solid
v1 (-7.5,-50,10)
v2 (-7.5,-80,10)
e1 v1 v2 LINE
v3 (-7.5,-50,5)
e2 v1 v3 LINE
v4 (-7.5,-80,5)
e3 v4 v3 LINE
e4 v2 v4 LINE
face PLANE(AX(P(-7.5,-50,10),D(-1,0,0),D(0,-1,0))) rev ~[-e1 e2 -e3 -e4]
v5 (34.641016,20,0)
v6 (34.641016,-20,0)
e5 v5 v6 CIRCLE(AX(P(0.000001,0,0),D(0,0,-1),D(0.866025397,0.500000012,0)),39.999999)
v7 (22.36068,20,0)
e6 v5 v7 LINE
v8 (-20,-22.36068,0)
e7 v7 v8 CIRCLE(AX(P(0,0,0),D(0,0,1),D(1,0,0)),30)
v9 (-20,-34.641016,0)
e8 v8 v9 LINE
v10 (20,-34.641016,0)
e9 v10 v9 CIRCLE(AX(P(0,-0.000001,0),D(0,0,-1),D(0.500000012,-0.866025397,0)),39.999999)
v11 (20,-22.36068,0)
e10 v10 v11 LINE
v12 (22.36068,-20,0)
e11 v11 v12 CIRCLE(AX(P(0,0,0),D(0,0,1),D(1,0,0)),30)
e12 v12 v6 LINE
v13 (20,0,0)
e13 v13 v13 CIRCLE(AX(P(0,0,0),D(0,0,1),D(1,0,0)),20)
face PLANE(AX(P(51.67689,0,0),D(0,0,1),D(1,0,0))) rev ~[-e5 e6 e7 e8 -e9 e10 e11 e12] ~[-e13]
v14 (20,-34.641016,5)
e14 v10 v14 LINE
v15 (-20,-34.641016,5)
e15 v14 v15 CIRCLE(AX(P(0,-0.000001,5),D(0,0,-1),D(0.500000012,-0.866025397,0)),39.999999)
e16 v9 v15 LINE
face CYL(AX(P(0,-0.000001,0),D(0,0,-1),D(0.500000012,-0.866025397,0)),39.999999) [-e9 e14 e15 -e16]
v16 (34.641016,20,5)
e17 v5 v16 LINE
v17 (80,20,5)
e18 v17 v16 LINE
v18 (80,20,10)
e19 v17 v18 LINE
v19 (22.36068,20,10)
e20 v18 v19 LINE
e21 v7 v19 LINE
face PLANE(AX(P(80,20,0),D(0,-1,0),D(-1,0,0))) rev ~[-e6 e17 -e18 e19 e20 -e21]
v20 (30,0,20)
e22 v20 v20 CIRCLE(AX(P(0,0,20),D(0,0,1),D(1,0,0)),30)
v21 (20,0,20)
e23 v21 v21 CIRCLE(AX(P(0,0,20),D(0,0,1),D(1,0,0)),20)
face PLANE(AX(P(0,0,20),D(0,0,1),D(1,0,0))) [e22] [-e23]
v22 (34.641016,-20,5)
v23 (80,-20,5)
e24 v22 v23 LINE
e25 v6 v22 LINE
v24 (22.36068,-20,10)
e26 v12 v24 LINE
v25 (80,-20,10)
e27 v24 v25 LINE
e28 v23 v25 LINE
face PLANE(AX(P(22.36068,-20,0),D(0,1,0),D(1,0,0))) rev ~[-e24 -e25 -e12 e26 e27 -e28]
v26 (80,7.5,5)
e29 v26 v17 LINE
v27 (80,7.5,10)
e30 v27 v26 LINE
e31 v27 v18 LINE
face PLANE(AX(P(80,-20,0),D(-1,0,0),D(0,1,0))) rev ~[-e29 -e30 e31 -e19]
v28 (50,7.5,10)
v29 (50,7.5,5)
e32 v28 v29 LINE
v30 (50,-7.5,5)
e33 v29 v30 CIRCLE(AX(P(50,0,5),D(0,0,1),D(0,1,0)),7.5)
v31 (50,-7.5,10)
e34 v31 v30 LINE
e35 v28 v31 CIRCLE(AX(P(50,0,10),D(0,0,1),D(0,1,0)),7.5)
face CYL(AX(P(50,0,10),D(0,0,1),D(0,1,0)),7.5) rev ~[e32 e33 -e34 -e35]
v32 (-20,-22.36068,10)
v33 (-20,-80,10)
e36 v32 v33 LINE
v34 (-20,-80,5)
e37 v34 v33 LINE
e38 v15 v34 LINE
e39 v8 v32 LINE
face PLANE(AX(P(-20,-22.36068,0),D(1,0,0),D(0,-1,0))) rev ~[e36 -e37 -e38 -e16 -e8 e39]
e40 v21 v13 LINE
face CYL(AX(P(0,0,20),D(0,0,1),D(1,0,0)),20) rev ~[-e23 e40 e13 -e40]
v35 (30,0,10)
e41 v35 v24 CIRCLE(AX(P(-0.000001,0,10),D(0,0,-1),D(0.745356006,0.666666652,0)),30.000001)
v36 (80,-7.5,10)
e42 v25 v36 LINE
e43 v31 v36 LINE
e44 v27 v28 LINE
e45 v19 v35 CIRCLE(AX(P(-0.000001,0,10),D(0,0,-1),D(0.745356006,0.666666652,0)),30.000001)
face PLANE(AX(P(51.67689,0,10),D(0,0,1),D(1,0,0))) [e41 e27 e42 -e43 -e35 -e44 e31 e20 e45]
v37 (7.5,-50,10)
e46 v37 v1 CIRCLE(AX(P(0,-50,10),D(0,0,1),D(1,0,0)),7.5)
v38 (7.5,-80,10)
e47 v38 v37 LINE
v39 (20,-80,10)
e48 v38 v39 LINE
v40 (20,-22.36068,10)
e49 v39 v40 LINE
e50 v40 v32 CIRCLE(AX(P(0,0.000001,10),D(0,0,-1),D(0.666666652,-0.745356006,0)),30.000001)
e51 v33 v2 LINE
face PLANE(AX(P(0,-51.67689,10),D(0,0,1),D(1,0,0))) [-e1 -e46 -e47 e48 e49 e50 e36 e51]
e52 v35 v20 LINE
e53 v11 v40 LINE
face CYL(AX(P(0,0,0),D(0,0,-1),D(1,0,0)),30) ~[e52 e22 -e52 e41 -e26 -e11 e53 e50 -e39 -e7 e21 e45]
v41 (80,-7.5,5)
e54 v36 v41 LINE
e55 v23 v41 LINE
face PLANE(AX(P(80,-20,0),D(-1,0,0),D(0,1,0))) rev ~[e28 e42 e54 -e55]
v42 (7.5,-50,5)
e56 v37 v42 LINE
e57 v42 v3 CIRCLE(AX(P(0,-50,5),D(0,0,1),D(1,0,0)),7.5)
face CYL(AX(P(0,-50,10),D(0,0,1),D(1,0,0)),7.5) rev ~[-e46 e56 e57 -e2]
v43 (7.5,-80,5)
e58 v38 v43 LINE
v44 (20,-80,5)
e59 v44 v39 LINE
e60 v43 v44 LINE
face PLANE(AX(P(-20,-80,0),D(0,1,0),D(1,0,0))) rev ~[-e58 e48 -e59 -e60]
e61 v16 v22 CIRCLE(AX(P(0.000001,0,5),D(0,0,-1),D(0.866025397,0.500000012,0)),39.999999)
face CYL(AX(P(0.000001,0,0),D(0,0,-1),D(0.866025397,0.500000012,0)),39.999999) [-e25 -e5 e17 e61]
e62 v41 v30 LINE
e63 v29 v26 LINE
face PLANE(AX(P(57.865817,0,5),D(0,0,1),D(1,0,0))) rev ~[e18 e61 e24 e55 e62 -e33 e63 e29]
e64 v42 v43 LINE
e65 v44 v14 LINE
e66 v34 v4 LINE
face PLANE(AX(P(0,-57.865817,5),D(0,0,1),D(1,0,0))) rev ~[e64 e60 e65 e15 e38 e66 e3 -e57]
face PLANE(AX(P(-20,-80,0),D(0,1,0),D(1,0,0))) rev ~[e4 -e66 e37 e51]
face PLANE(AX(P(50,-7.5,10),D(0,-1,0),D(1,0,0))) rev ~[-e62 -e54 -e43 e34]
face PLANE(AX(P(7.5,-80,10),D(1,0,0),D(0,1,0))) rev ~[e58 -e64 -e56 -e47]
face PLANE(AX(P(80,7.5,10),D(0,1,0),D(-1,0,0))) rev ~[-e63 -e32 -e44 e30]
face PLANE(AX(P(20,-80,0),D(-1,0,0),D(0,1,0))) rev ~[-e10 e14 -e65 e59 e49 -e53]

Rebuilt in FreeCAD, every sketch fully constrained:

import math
import FreeCAD as App
import Part
import Sketcher
from FreeCAD import Vector
Q = App.Units.Quantity

doc = App.newDocument("Part")
body = doc.addObject("PartDesign::Body", "Body")

# Sketch on XY plane
sketch1 = body.newObject("Sketcher::SketchObject", "Sketch")
sketch1.AttachmentSupport = (doc.getObject("XY_Plane"), [""])
sketch1.MapMode = "FlatFace"
sketch1.addGeometry(Part.Circle(Vector(0, 0, 0), Vector(0, 0, 1), 30), False)
sketch1.addConstraint(Sketcher.Constraint("Coincident", 0, 3, -1, 1))
sketch1.addConstraint(Sketcher.Constraint("Diameter", 0, Q("60 mm")))
pad1 = body.newObject("PartDesign::Pad", "Pad")
pad1.Profile = sketch1
pad1.Length = 20

# Sketch on XY plane
sketch2 = body.newObject("Sketcher::SketchObject", "Sketch001")
sketch2.AttachmentSupport = (doc.getObject("XY_Plane"), [""])
sketch2.MapMode = "FlatFace"
sketch2.addGeometry(Part.ArcOfCircle(Part.Circle(Vector(0, 0, 0), Vector(0, 0, 1), 30), math.radians(-42), math.radians(42)), False)
sketch2.addGeometry(Part.LineSegment(Vector(22, -20, 0), Vector(80, -20, 0)), False)
sketch2.addGeometry(Part.LineSegment(Vector(80, -20, 0), Vector(80, 20, 0)), False)
sketch2.addGeometry(Part.LineSegment(Vector(80, 20, 0), Vector(22, 20, 0)), False)
sketch2.addGeometry(Part.LineSegment(Vector(20, -80, 0), Vector(20, -22, 0)), False)
sketch2.addGeometry(Part.ArcOfCircle(Part.Circle(Vector(0, 0, 0), Vector(0, 0, 1), 30), math.radians(-132), math.radians(-48)), False)
sketch2.addGeometry(Part.LineSegment(Vector(-20, -22, 0), Vector(-20, -80, 0)), False)
sketch2.addGeometry(Part.LineSegment(Vector(-20, -80, 0), Vector(20, -80, 0)), False)
sketch2.addConstraint(Sketcher.Constraint("Coincident", 0, 1, 1, 1))
sketch2.addConstraint(Sketcher.Constraint("Coincident", 1, 2, 2, 1))
sketch2.addConstraint(Sketcher.Constraint("Coincident", 2, 2, 3, 1))
sketch2.addConstraint(Sketcher.Constraint("Coincident", 3, 2, 0, 2))
sketch2.addConstraint(Sketcher.Constraint("Coincident", 4, 2, 5, 2))
sketch2.addConstraint(Sketcher.Constraint("Coincident", 5, 1, 6, 1))
sketch2.addConstraint(Sketcher.Constraint("Coincident", 6, 2, 7, 1))
sketch2.addConstraint(Sketcher.Constraint("Coincident", 7, 2, 4, 1))
sketch2.addConstraint(Sketcher.Constraint("Horizontal", 1))
sketch2.addConstraint(Sketcher.Constraint("Vertical", 2))
sketch2.addConstraint(Sketcher.Constraint("Horizontal", 3))
sketch2.addConstraint(Sketcher.Constraint("Vertical", 4))
sketch2.addConstraint(Sketcher.Constraint("Vertical", 6))
sketch2.addConstraint(Sketcher.Constraint("Horizontal", 7))
sketch2.addConstraint(Sketcher.Constraint("Coincident", 0, 3, -1, 1))
sketch2.addConstraint(Sketcher.Constraint("Coincident", 5, 3, -1, 1))
sketch2.addConstraint(Sketcher.Constraint("Equal", 0, 5))
sketch2.addConstraint(Sketcher.Constraint("Horizontal", 4, 2, 5, 1))
sketch2.addConstraint(Sketcher.Constraint("Vertical", 0, 1, 3, 2))
sketch2.addConstraint(Sketcher.Constraint("Equal", 7, 2))
sketch2.addConstraint(Sketcher.Constraint("Equal", 3, 4))
sketch2.addConstraint(Sketcher.Constraint("Radius", 0, Q("30.000001 mm")))
sketch2.addConstraint(Sketcher.Constraint("DistanceX", 7, 1, 7, 2, Q("40 mm")))
sketch2.addConstraint(Sketcher.Constraint("DistanceX", -1, 1, 1, 2, Q("80 mm")))
pad2 = body.newObject("PartDesign::Pad", "Pad001")
pad2.Profile = sketch2
pad2.Length = 10

# Sketch on XY plane
sketch3 = body.newObject("Sketcher::SketchObject", "Sketch002")
sketch3.AttachmentSupport = (doc.getObject("XY_Plane"), [""])
sketch3.MapMode = "FlatFace"
sketch3.AttachmentOffset = App.Placement(Vector(0, 0, 10), App.Rotation())
sketch3.addGeometry(Part.LineSegment(Vector(8, -80, 0), Vector(8, -50, 0)), False)
sketch3.addGeometry(Part.ArcOfCircle(Part.Circle(Vector(0, -50, 0), Vector(0, 0, 1), 8), math.radians(0), math.radians(180)), False)
sketch3.addGeometry(Part.LineSegment(Vector(-8, -50, 0), Vector(-8, -80, 0)), False)
sketch3.addGeometry(Part.LineSegment(Vector(-8, -80, 0), Vector(8, -80, 0)), False)
sketch3.addConstraint(Sketcher.Constraint("Tangent", 0, 2, 1, 1))
sketch3.addConstraint(Sketcher.Constraint("Tangent", 1, 2, 2, 1))
sketch3.addConstraint(Sketcher.Constraint("Coincident", 2, 2, 3, 1))
sketch3.addConstraint(Sketcher.Constraint("Coincident", 3, 2, 0, 1))
sketch3.addConstraint(Sketcher.Constraint("Vertical", 0))
sketch3.addConstraint(Sketcher.Constraint("Vertical", 2))
sketch3.addConstraint(Sketcher.Constraint("Horizontal", 3))
sketch3.addConstraint(Sketcher.Constraint("PointOnObject", 1, 3, -2))
sketch3.addConstraint(Sketcher.Constraint("Radius", 1, Q("7.5 mm")))
sketch3.addConstraint(Sketcher.Constraint("DistanceY", 0, 1, 0, 2, Q("30 mm")))
sketch3.addConstraint(Sketcher.Constraint("DistanceY", 1, 3, -1, 1, Q("50 mm")))
pocket1 = body.newObject("PartDesign::Pocket", "Pocket")
pocket1.Profile = sketch3
pocket1.Length = 25

# Sketch on XY plane
sketch4 = body.newObject("Sketcher::SketchObject", "Sketch003")
sketch4.AttachmentSupport = (doc.getObject("XY_Plane"), [""])
sketch4.MapMode = "FlatFace"
sketch4.AttachmentOffset = App.Placement(Vector(0, 0, 10), App.Rotation())
sketch4.addGeometry(Part.LineSegment(Vector(80, 8, 0), Vector(50, 8, 0)), False)
sketch4.addGeometry(Part.ArcOfCircle(Part.Circle(Vector(50, 0, 0), Vector(0, 0, 1), 8), math.radians(90), math.radians(270)), False)
sketch4.addGeometry(Part.LineSegment(Vector(50, -8, 0), Vector(80, -8, 0)), False)
sketch4.addGeometry(Part.LineSegment(Vector(80, -8, 0), Vector(80, 8, 0)), False)
sketch4.addConstraint(Sketcher.Constraint("Tangent", 0, 2, 1, 1))
sketch4.addConstraint(Sketcher.Constraint("Tangent", 1, 2, 2, 1))
sketch4.addConstraint(Sketcher.Constraint("Coincident", 2, 2, 3, 1))
sketch4.addConstraint(Sketcher.Constraint("Coincident", 3, 2, 0, 1))
sketch4.addConstraint(Sketcher.Constraint("Horizontal", 0))
sketch4.addConstraint(Sketcher.Constraint("Horizontal", 2))
sketch4.addConstraint(Sketcher.Constraint("Vertical", 3))
sketch4.addConstraint(Sketcher.Constraint("PointOnObject", 1, 3, -1))
sketch4.addConstraint(Sketcher.Constraint("Radius", 1, Q("7.5 mm")))
sketch4.addConstraint(Sketcher.Constraint("DistanceX", 0, 2, 0, 1, Q("30 mm")))
sketch4.addConstraint(Sketcher.Constraint("DistanceX", -1, 1, 1, 3, Q("50 mm")))
pocket2 = body.newObject("PartDesign::Pocket", "Pocket001")
pocket2.Profile = sketch4
pocket2.Length = 10

# Sketch on XY plane
sketch5 = body.newObject("Sketcher::SketchObject", "Sketch004")
sketch5.AttachmentSupport = (doc.getObject("XY_Plane"), [""])
sketch5.MapMode = "FlatFace"
sketch5.addGeometry(Part.ArcOfCircle(Part.Circle(Vector(0, 0, 0), Vector(0, 0, 1), 40), math.radians(-120), math.radians(-60)), False)
sketch5.addGeometry(Part.LineSegment(Vector(-20, -35, 0), Vector(-20, -80, 0)), False)
sketch5.addGeometry(Part.LineSegment(Vector(-20, -80, 0), Vector(20, -80, 0)), False)
sketch5.addGeometry(Part.LineSegment(Vector(20, -80, 0), Vector(20, -35, 0)), False)
sketch5.addGeometry(Part.ArcOfCircle(Part.Circle(Vector(0, 0, 0), Vector(0, 0, 1), 40), math.radians(-30), math.radians(30)), False)
sketch5.addGeometry(Part.LineSegment(Vector(35, -20, 0), Vector(80, -20, 0)), False)
sketch5.addGeometry(Part.LineSegment(Vector(80, -20, 0), Vector(80, 20, 0)), False)
sketch5.addGeometry(Part.LineSegment(Vector(80, 20, 0), Vector(35, 20, 0)), False)
sketch5.addConstraint(Sketcher.Constraint("Coincident", 0, 1, 1, 1))
sketch5.addConstraint(Sketcher.Constraint("Coincident", 1, 2, 2, 1))
sketch5.addConstraint(Sketcher.Constraint("Coincident", 2, 2, 3, 1))
sketch5.addConstraint(Sketcher.Constraint("Coincident", 3, 2, 0, 2))
sketch5.addConstraint(Sketcher.Constraint("Coincident", 4, 1, 5, 1))
sketch5.addConstraint(Sketcher.Constraint("Coincident", 5, 2, 6, 1))
sketch5.addConstraint(Sketcher.Constraint("Coincident", 6, 2, 7, 1))
sketch5.addConstraint(Sketcher.Constraint("Coincident", 7, 2, 4, 2))
sketch5.addConstraint(Sketcher.Constraint("Vertical", 1))
sketch5.addConstraint(Sketcher.Constraint("Horizontal", 2))
sketch5.addConstraint(Sketcher.Constraint("Vertical", 3))
sketch5.addConstraint(Sketcher.Constraint("Horizontal", 5))
sketch5.addConstraint(Sketcher.Constraint("Vertical", 6))
sketch5.addConstraint(Sketcher.Constraint("Horizontal", 7))
sketch5.addConstraint(Sketcher.Constraint("Coincident", 0, 3, -1, 1))
sketch5.addConstraint(Sketcher.Constraint("Coincident", 4, 3, -1, 1))
sketch5.addConstraint(Sketcher.Constraint("Equal", 0, 4))
sketch5.addConstraint(Sketcher.Constraint("Horizontal", 0, 1, 3, 2))
sketch5.addConstraint(Sketcher.Constraint("Vertical", 4, 1, 7, 2))
sketch5.addConstraint(Sketcher.Constraint("Equal", 7, 1))
sketch5.addConstraint(Sketcher.Constraint("Equal", 2, 6))
sketch5.addConstraint(Sketcher.Constraint("Radius", 0, Q("39.999999 mm")))
sketch5.addConstraint(Sketcher.Constraint("DistanceX", 2, 1, 2, 2, Q("40 mm")))
sketch5.addConstraint(Sketcher.Constraint("DistanceY", 1, 2, -1, 1, Q("80 mm")))
pocket3 = body.newObject("PartDesign::Pocket", "Pocket002")
pocket3.Profile = sketch5
pocket3.Length = 5
pocket3.Reversed = True

# Sketch on XY plane
sketch6 = body.newObject("Sketcher::SketchObject", "Sketch005")
sketch6.AttachmentSupport = (doc.getObject("XY_Plane"), [""])
sketch6.MapMode = "FlatFace"
sketch6.AttachmentOffset = App.Placement(Vector(0, 0, 20), App.Rotation())
sketch6.addGeometry(Part.Circle(Vector(0, 0, 0), Vector(0, 0, 1), 20), False)
sketch6.addConstraint(Sketcher.Constraint("Coincident", 0, 3, -1, 1))
sketch6.addConstraint(Sketcher.Constraint("Diameter", 0, Q("40 mm")))
pocket4 = body.newObject("PartDesign::Pocket", "Pocket003")
pocket4.Profile = sketch6
pocket4.Length = 20

doc.recompute()
